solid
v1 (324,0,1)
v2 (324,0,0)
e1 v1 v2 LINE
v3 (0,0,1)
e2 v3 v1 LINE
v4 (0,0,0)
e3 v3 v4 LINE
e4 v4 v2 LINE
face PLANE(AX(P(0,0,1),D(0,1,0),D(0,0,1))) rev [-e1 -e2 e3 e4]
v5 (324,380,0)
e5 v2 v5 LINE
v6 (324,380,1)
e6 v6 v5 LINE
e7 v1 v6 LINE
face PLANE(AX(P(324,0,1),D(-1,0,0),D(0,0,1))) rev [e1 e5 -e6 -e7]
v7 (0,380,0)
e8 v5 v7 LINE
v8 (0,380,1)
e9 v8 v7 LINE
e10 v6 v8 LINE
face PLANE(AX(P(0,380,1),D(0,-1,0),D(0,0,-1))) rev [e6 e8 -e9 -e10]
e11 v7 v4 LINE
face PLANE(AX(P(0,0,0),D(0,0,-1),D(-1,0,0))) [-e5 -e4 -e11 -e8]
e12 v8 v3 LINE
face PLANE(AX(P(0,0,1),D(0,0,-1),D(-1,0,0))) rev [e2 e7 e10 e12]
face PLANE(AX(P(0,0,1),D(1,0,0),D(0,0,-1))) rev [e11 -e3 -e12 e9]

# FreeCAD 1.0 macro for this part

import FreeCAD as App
import Part
import Sketcher

V = App.Vector
Q = App.Units.Quantity

doc = App.newDocument("Part")
body = doc.addObject("PartDesign::Body", "Body")

# Sketch on XY plane
sketch1 = body.newObject("Sketcher::SketchObject", "Sketch")
sketch1.AttachmentSupport = (doc.getObject("XY_Plane"), [""])
sketch1.MapMode = "FlatFace"
sketch1.addGeometry([
    Part.LineSegment(V(0, 380, 0), V(0, 0, 0)),
    Part.LineSegment(V(0, 0, 0), V(324, 0, 0)),
    Part.LineSegment(V(324, 0, 0), V(324, 380, 0)),
    Part.LineSegment(V(324, 380, 0), V(0, 380, 0)),
], False)
sketch1.addConstraint([
    Sketcher.Constraint("Coincident", 0, 2, 1, 1),
    Sketcher.Constraint("Coincident", 1, 2, 2, 1),
    Sketcher.Constraint("Coincident", 2, 2, 3, 1),
    Sketcher.Constraint("Coincident", 3, 2, 0, 1),
    Sketcher.Constraint("Vertical", 0),
    Sketcher.Constraint("Horizontal", 1),
    Sketcher.Constraint("Vertical", 2),
    Sketcher.Constraint("Horizontal", 3),
    Sketcher.Constraint("Coincident", 0, 2, -1, 1),
    Sketcher.Constraint("DistanceX", 1, 1, 1, 2, Q("324 mm")),
    Sketcher.Constraint("DistanceY", 0, 2, 0, 1, Q("380 mm")),
])
pad1 = body.newObject("PartDesign::Pad", "Pad")
pad1.Profile = sketch1
pad1.Length = 1

doc.recompute()
